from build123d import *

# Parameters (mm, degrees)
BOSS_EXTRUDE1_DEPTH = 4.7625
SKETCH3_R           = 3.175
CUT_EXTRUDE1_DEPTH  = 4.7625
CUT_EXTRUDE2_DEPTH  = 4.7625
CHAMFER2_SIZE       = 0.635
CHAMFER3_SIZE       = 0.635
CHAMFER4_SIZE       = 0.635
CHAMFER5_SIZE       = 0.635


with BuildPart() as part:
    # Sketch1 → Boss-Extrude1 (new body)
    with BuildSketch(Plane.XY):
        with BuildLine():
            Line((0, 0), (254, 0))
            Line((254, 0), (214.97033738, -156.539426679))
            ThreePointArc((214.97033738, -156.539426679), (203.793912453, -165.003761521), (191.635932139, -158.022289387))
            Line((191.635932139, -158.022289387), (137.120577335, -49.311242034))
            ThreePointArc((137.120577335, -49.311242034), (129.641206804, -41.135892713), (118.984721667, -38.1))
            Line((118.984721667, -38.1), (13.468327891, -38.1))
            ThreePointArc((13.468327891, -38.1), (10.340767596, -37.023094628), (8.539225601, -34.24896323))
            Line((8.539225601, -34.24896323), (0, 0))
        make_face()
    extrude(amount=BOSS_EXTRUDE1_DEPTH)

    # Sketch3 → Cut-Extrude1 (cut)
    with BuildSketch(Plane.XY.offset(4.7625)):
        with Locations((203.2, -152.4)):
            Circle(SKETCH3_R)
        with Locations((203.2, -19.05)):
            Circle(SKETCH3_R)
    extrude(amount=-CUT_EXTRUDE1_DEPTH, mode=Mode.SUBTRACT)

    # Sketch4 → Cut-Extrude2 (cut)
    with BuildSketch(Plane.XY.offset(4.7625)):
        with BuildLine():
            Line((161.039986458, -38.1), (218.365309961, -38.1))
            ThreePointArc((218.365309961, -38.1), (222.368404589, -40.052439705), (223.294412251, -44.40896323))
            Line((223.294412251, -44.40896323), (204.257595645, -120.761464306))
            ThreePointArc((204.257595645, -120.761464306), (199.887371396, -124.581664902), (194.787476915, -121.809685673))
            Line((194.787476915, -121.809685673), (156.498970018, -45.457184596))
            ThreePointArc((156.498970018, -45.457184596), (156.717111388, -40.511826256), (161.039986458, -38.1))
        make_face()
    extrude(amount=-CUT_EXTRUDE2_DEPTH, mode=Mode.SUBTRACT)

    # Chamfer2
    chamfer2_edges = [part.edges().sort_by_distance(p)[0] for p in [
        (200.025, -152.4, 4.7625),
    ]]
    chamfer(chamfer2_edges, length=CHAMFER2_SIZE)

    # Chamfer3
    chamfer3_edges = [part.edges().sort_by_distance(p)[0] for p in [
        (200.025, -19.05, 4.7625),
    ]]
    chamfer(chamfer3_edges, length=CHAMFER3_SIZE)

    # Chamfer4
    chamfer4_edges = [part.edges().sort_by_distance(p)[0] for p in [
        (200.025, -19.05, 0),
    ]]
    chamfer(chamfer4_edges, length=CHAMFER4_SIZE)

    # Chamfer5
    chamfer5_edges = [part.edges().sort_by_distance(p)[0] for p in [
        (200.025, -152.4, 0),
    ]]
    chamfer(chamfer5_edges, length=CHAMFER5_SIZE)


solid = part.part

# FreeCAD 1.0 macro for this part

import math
import FreeCAD as App
import Part
import Sketcher

V = App.Vector
Q = App.Units.Quantity


def edges_at(feature, points):
    """Names of the edges that pass closest to the given points."""
    edges = feature.Shape.Edges
    near = lambda p: min(range(len(edges)), key=lambda i: edges[i].distToShape(Part.Vertex(*p))[0])
    return sorted({f"Edge{near(p) + 1}" for p in points})

doc = App.newDocument("Part")
body = doc.addObject("PartDesign::Body", "Body")

sketch1 = doc.addObject("Sketcher::SketchObject", "Sketch")
body.addObject(sketch1)
sketch1.AttachmentSupport = (doc.XY_Plane, [""])
sketch1.MapMode = "FlatFace"
sketch1.addGeometry([
    Part.LineSegment(V(254, 0, 0), V(0, 0, 0)),
    Part.LineSegment(V(0, 0, 0), V(8.539226, -34.248963, 0)),
    Part.ArcOfCircle(Part.Circle(V(13.468328, -33.02, 0), V(0, 0, 1), 5.08), math.radians(-166), math.radians(-90)),
    Part.LineSegment(V(13.468328, -38.1, 0), V(118.984722, -38.1, 0)),
    Part.ArcOfCircle(Part.Circle(V(118.956512, -58.41998, 0), V(0, 0, 1), 20.32), math.radians(26.632402), math.radians(89.920457)),
    Part.LineSegment(V(137.120577, -49.311242, 0), V(191.635932, -158.022289, 0)),
    Part.ArcOfCircle(Part.Circle(V(202.988473, -152.329328, 0), V(0, 0, 1), 12.7), math.radians(-153.367598), math.radians(-19.360078)),
    Part.LineSegment(V(214.970337, -156.539427, 0), V(254, 0, 0)),
], False)
sketch1.addConstraint([
    Sketcher.Constraint("Coincident", 0, 2, 1, 1),
    Sketcher.Constraint("Tangent", 1, 2, 2, 1),
    Sketcher.Constraint("Tangent", 2, 2, 3, 1),
    Sketcher.Constraint("Coincident", 3, 2, 4, 2),
    Sketcher.Constraint("Tangent", 4, 1, 5, 1),
    Sketcher.Constraint("Tangent", 5, 2, 6, 1),
    Sketcher.Constraint("Coincident", 6, 2, 7, 1),
    Sketcher.Constraint("Coincident", 7, 2, 0, 1),
    Sketcher.Constraint("Horizontal", 0),
    Sketcher.Constraint("Horizontal", 3),
    Sketcher.Constraint("Coincident", 0, 2, -1, 1),
    Sketcher.Constraint("Radius", 2, Q("0.2 in")),
    Sketcher.Constraint("Radius", 4, Q("0.8 in")),
    Sketcher.Constraint("Radius", 6, Q("0.5 in")),
    Sketcher.Constraint("DistanceX", 0, 2, 0, 1, Q("10 in")),
    Sketcher.Constraint("Angle", 1, Q("-76 deg")),
    Sketcher.Constraint("Angle", 7, Q("76 deg")),
    Sketcher.Constraint("DistanceY", 2, 3, -1, 1, Q("1.3 in")),
    Sketcher.Constraint("DistanceY", 6, 2, 6, 3, Q("4.210099 mm")),
    Sketcher.Constraint("Distance", 5, Q("121.614209 mm")),
    Sketcher.Constraint("DistanceX", 3, 1, 3, 2, Q("105.516394 mm")),
    Sketcher.Constraint("DistanceX", -1, 1, 4, 3, Q("118.956512 mm")),
])
pad1 = doc.addObject("PartDesign::Pad", "Pad")
body.addObject(pad1)
pad1.Profile = sketch1
pad1.Length = Q("0.1875 in")

sketch2 = doc.addObject("Sketcher::SketchObject", "Sketch001")
body.addObject(sketch2)
sketch2.AttachmentSupport = (doc.XY_Plane, [""])
sketch2.MapMode = "FlatFace"
sketch2.AttachmentOffset = App.Placement(V(0, 0, 0.1875 * 25.4), App.Rotation())
sketch2.addGeometry([
    Part.Circle(V(203.2, -152.4, 0), V(0, 0, 1), 3.175),
    Part.Circle(V(203.2, -19.05, 0), V(0, 0, 1), 3.175),
], False)
sketch2.addConstraint([
    Sketcher.Constraint("Equal", 0, 1),
    Sketcher.Constraint("Vertical", 0, 3, 1, 3),
    Sketcher.Constraint("Diameter", 0, Q("0.25 in")),
    Sketcher.Constraint("DistanceX", -1, 1, 0, 3, Q("8 in")),
    Sketcher.Constraint("DistanceY", 0, 3, -1, 1, Q("6 in")),
    Sketcher.Constraint("DistanceY", 1, 3, -1, 1, Q("0.75 in")),
])
pocket1 = doc.addObject("PartDesign::Pocket", "Pocket")
body.addObject(pocket1)
pocket1.Profile = sketch2
pocket1.Length = Q("0.1875 in")

sketch3 = doc.addObject("Sketcher::SketchObject", "Sketch002")
body.addObject(sketch3)
sketch3.AttachmentSupport = (doc.XY_Plane, [""])
sketch3.MapMode = "FlatFace"
sketch3.AttachmentOffset = App.Placement(V(0, 0, 0.1875 * 25.4), App.Rotation())
sketch3.addGeometry([
    Part.LineSegment(V(218.36531, -38.1, 0), V(161.039986, -38.1, 0)),
    Part.ArcOfCircle(Part.Circle(V(161.039986, -43.18, 0), V(0, 0, 1), 5.08), math.radians(90), math.radians(206.632402)),
    Part.LineSegment(V(156.49897, -45.457185, 0), V(194.787477, -121.809686, 0)),
    Part.ArcOfCircle(Part.Circle(V(199.328493, -119.532501, 0), V(0, 0, 1), 5.08), math.radians(-153.367598), math.radians(-14)),
    Part.LineSegment(V(204.257596, -120.761464, 0), V(223.294412, -44.408963, 0)),
    Part.ArcOfCircle(Part.Circle(V(218.36531, -43.18, 0), V(0, 0, 1), 5.08), math.radians(-14), math.radians(90)),
], False)
sketch3.addConstraint([
    Sketcher.Constraint("Tangent", 0, 2, 1, 1),
    Sketcher.Constraint("Tangent", 1, 2, 2, 1),
    Sketcher.Constraint("Tangent", 2, 2, 3, 1),
    Sketcher.Constraint("Tangent", 3, 2, 4, 1),
    Sketcher.Constraint("Tangent", 4, 2, 5, 1),
    Sketcher.Constraint("Tangent", 5, 2, 0, 1),
    Sketcher.Constraint("Horizontal", 0),
    Sketcher.Constraint("Equal", 1, 3),
    Sketcher.Constraint("Equal", 3, 5),
    Sketcher.Constraint("Radius", 1, Q("0.2 in")),
    Sketcher.Constraint("Angle", 4, Q("76 deg")),
    Sketcher.Constraint("DistanceY", 1, 3, -1, 1, Q("1.7 in")),
    Sketcher.Constraint("DistanceY", 3, 3, -1, 1, Q("119.532501 mm")),
    Sketcher.Constraint("DistanceX", 0, 2, 0, 1, Q("57.325324 mm")),
    Sketcher.Constraint("DistanceX", -1, 1, 5, 3, Q("218.36531 mm")),
])
pocket2 = doc.addObject("PartDesign::Pocket", "Pocket001")
body.addObject(pocket2)
pocket2.Profile = sketch3
pocket2.Length = Q("0.1875 in")
doc.recompute()

chamfer = doc.addObject("PartDesign::Chamfer", "Chamfer")
body.addObject(chamfer)
chamfer.Base = (pocket2, edges_at(pocket2, [(200.025, -152.4, 4.763)]))
chamfer.Size = Q("0.025 in")
doc.recompute()

chamfer2 = doc.addObject("PartDesign::Chamfer", "Chamfer001")
body.addObject(chamfer2)
chamfer2.Base = (chamfer, edges_at(chamfer, [(200.025, -19.05, 4.763)]))
chamfer2.Size = Q("0.025 in")
doc.recompute()

chamfer3 = doc.addObject("PartDesign::Chamfer", "Chamfer002")
body.addObject(chamfer3)
chamfer3.Base = (chamfer2, edges_at(chamfer2, [(200.025, -19.05, 0)]))
chamfer3.Size = Q("0.025 in")
doc.recompute()

chamfer4 = doc.addObject("PartDesign::Chamfer", "Chamfer003")
body.addObject(chamfer4)
chamfer4.Base = (chamfer3, edges_at(chamfer3, [(200.025, -152.4, 0)]))
chamfer4.Size = Q("0.025 in")

doc.recompute()
